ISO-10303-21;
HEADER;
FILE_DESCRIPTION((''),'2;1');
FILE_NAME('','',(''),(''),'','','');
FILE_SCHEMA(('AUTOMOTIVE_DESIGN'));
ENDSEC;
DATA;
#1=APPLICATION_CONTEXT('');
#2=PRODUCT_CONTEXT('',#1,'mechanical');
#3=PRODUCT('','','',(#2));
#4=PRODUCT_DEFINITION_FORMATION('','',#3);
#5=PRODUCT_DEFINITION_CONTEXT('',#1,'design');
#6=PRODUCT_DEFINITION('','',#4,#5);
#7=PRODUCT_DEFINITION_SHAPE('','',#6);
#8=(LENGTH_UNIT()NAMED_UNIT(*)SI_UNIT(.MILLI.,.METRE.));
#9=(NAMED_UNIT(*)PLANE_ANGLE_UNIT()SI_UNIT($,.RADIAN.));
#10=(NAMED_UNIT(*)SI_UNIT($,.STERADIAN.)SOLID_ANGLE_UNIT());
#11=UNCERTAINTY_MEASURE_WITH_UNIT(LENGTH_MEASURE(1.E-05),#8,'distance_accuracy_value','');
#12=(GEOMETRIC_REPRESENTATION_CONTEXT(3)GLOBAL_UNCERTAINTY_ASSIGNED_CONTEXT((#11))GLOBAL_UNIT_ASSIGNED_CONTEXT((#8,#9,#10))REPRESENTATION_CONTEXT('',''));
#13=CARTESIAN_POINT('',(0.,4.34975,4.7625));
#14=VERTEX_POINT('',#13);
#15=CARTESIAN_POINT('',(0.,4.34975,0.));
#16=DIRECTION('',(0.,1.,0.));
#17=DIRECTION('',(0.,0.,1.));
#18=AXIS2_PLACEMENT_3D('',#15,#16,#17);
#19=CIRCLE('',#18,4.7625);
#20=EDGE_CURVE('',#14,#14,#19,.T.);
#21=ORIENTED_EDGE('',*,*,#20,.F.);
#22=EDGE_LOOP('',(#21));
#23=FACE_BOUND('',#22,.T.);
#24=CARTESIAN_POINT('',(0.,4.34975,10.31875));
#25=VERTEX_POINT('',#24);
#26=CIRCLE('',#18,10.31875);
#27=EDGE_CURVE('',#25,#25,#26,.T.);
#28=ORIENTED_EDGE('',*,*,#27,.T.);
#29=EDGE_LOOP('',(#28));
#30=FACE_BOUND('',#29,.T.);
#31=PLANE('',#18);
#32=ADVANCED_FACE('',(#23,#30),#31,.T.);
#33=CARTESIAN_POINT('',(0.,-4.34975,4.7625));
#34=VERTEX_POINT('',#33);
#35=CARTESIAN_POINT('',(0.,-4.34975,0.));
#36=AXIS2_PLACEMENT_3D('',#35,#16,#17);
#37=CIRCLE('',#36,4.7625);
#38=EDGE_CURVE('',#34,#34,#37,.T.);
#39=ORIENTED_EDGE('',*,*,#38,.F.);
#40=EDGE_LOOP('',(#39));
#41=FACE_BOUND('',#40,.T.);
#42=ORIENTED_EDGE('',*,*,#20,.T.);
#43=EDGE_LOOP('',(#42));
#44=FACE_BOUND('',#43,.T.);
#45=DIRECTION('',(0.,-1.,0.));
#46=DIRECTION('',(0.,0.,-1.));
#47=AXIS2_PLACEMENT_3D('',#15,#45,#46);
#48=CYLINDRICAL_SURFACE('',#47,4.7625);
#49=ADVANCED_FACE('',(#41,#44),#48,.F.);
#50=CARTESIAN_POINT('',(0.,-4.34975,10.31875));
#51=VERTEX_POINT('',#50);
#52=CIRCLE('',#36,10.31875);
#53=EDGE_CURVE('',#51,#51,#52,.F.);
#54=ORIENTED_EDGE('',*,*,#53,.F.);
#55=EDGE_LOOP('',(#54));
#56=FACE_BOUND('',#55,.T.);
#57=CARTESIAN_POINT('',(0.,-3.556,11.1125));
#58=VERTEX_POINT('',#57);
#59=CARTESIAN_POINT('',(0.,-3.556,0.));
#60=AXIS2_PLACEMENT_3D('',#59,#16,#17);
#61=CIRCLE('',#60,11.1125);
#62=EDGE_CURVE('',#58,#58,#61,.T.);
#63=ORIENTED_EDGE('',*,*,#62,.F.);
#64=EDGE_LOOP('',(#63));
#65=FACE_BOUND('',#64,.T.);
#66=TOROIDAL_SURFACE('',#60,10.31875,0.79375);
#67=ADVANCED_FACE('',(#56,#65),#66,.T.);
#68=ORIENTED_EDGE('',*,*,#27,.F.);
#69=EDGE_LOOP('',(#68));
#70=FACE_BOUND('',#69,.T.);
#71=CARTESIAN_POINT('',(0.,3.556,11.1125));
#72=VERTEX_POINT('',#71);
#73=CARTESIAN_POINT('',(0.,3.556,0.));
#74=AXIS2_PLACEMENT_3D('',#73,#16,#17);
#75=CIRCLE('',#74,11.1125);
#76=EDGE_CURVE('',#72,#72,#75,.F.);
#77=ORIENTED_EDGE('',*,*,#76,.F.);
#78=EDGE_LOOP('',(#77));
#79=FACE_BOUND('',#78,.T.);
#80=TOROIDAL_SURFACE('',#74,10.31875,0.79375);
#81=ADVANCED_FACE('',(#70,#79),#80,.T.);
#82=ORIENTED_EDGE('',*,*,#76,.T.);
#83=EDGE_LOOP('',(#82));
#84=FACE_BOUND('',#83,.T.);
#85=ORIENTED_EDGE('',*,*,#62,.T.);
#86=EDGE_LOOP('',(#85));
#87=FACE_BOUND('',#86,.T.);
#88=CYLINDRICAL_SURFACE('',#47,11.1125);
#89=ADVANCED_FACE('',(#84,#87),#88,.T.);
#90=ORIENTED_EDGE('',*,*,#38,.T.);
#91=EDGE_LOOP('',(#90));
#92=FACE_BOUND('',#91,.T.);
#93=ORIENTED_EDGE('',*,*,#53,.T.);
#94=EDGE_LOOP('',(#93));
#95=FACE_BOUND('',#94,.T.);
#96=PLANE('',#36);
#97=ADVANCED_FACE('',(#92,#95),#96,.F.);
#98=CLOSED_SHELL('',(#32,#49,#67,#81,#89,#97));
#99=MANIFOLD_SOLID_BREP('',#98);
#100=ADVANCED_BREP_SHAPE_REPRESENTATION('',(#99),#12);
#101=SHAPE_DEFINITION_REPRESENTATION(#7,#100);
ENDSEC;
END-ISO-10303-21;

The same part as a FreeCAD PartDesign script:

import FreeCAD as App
import Part
import Sketcher
Q = App.Units.Quantity


def edges_at(feature, points):
    """Names of the edges that pass closest to the given points."""
    edges = feature.Shape.Edges
    near = lambda p: min(range(len(edges)), key=lambda i: edges[i].distToShape(Part.Vertex(*p))[0])
    return sorted({f"Edge{near(p) + 1}" for p in points})

doc = App.newDocument("Part")
body = doc.addObject("PartDesign::Body", "Body")

sketch1 = body.newObject("Sketcher::SketchObject", "Sketch")
sketch1.AttachmentSupport = (doc.getObject("XZ_Plane"), [""])
sketch1.MapMode = "FlatFace"
sketch1.addGeometry(Part.Circle(App.Vector(0, 0, 0), App.Vector(0, 0, 1), 11.1), False)
sketch1.addGeometry(Part.Circle(App.Vector(0, 0, 0), App.Vector(0, 0, 1), 4.8), False)
sketch1.addConstraint(Sketcher.Constraint("Coincident", 0, 3, -1, 1))
sketch1.addConstraint(Sketcher.Constraint("Coincident", 1, 3, -1, 1))
sketch1.addConstraint(Sketcher.Constraint("Diameter", 0, Q("0.875 in")))
sketch1.addConstraint(Sketcher.Constraint("Diameter", 1, Q("0.375 in")))
pad1 = body.newObject("PartDesign::Pad", "Pad")
pad1.Profile = sketch1
pad1.Length = Q("0.3425 in")
pad1.Midplane = True
doc.recompute()

fillet = body.newObject("PartDesign::Fillet", "Fillet")
fillet.Base = (pad1, edges_at(pad1, [(0, -4.35, -11.113), (0, 4.35, -11.113)]))
fillet.Radius = Q("0.03125 in")

doc.recompute()
